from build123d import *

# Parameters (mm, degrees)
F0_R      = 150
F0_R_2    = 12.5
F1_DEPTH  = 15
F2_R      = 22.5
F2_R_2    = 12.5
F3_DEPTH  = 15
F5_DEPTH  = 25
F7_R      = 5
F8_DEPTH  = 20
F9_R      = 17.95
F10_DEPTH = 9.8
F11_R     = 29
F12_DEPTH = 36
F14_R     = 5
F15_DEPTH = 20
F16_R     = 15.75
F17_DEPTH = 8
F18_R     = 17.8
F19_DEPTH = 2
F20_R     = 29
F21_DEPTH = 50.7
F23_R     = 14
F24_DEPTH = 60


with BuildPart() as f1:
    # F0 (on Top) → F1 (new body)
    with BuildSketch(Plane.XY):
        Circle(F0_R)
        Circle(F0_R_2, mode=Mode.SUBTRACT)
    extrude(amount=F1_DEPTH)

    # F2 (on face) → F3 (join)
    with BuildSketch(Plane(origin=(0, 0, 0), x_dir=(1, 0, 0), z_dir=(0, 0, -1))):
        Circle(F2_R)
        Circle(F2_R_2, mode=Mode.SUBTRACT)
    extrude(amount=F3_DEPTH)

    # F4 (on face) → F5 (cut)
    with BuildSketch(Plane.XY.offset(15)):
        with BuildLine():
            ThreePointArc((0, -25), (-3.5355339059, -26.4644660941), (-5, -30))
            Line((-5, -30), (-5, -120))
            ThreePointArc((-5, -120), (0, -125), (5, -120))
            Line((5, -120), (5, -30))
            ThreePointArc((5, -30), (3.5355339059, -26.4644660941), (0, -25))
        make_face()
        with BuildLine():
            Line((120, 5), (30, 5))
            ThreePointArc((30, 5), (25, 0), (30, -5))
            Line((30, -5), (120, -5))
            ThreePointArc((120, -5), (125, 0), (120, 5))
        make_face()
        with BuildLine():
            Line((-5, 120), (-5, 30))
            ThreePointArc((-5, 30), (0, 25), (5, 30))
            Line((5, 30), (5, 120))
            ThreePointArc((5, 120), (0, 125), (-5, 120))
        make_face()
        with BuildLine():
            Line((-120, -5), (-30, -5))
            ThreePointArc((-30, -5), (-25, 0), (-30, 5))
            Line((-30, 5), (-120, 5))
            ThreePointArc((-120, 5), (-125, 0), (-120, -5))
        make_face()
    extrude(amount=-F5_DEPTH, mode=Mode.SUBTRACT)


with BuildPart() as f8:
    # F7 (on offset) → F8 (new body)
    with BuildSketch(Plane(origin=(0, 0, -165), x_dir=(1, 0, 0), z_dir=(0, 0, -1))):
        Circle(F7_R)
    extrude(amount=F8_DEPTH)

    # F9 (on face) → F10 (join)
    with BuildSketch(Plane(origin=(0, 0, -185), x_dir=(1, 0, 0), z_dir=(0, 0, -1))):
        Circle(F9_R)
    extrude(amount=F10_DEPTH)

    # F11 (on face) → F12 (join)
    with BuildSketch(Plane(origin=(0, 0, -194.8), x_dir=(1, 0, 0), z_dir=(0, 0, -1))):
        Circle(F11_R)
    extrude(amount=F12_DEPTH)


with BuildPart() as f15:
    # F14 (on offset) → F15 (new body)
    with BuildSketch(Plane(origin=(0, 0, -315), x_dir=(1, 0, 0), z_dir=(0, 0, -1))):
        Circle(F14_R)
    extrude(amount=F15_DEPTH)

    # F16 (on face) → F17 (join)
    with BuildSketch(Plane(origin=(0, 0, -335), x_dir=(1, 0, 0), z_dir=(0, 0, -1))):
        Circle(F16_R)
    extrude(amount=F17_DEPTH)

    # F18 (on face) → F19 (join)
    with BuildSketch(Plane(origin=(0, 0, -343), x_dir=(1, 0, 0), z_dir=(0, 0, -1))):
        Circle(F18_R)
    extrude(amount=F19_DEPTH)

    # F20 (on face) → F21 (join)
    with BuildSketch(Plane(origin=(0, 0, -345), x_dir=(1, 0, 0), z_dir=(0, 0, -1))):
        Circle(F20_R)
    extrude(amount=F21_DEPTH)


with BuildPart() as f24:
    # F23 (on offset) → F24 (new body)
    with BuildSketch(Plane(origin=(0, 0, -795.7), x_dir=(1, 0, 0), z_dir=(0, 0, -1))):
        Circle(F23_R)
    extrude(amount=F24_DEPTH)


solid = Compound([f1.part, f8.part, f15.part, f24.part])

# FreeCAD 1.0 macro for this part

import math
import FreeCAD as App
import Part
import Sketcher

doc = App.newDocument("Part")
body = doc.addObject("PartDesign::Body", "Body")

# Sketch on XY plane
sketch1 = body.newObject("Sketcher::SketchObject", "Sketch")
sketch1.AttachmentSupport = (doc.getObject("XY_Plane"), [""])
sketch1.MapMode = "FlatFace"
sketch1.addGeometry([
    Part.Circle(App.Vector(0, 0, 0), App.Vector(0, 0, 1), 150),
    Part.Circle(App.Vector(0, 0, 0), App.Vector(0, 0, 1), 12.5),
], False)
sketch1.addConstraint([
    Sketcher.Constraint("Coincident", 0, 3, -1, 1),
    Sketcher.Constraint("Coincident", 1, 3, -1, 1),
    Sketcher.Constraint("Diameter", 0, 300.0),
    Sketcher.Constraint("Diameter", 1, 25.0),
])
pad1 = body.newObject("PartDesign::Pad", "Pad")
pad1.Profile = sketch1
pad1.Length = 15

# Sketch on XY plane
sketch2 = body.newObject("Sketcher::SketchObject", "Sketch001")
sketch2.AttachmentSupport = (doc.getObject("XY_Plane"), [""])
sketch2.MapMode = "FlatFace"
sketch2.addGeometry([
    Part.Circle(App.Vector(0, 0, 0), App.Vector(0, 0, 1), 22.5),
    Part.Circle(App.Vector(0, 0, 0), App.Vector(0, 0, 1), 12.5),
], False)
sketch2.addConstraint([
    Sketcher.Constraint("Coincident", 0, 3, -1, 1),
    Sketcher.Constraint("Coincident", 1, 3, -1, 1),
    Sketcher.Constraint("Diameter", 0, 45.0),
    Sketcher.Constraint("Diameter", 1, 25.0),
])
pad2 = body.newObject("PartDesign::Pad", "Pad001")
pad2.Profile = sketch2
pad2.Length = 15
pad2.Reversed = True

# Sketch on XY plane
sketch3 = body.newObject("Sketcher::SketchObject", "Sketch002")
sketch3.AttachmentSupport = (doc.getObject("XY_Plane"), [""])
sketch3.MapMode = "FlatFace"
sketch3.AttachmentOffset = App.Placement(App.Vector(0, 0, 15), App.Rotation())
sketch3.addGeometry([
    Part.ArcOfCircle(Part.Circle(App.Vector(0, -30, 0), App.Vector(0, 0, 1), 5), math.radians(90), math.radians(180)),  # 0
    Part.LineSegment(App.Vector(-5, -30, 0), App.Vector(-5, -120, 0)),  # 1
    Part.ArcOfCircle(Part.Circle(App.Vector(0, -120, 0), App.Vector(0, 0, 1), 5), math.radians(180), math.radians(360)),  # 2
    Part.LineSegment(App.Vector(5, -120, 0), App.Vector(5, -30, 0)),  # 3
    Part.ArcOfCircle(Part.Circle(App.Vector(0, -30, 0), App.Vector(0, 0, 1), 5), math.radians(0), math.radians(90)),  # 4
    Part.LineSegment(App.Vector(120, 5, 0), App.Vector(30, 5, 0)),  # 5
    Part.ArcOfCircle(Part.Circle(App.Vector(30, 0, 0), App.Vector(0, 0, 1), 5), math.radians(90), math.radians(270)),  # 6
    Part.LineSegment(App.Vector(30, -5, 0), App.Vector(120, -5, 0)),  # 7
    Part.ArcOfCircle(Part.Circle(App.Vector(120, 0, 0), App.Vector(0, 0, 1), 5), math.radians(-90), math.radians(90)),  # 8
    Part.LineSegment(App.Vector(-5, 120, 0), App.Vector(-5, 30, 0)),  # 9
    Part.ArcOfCircle(Part.Circle(App.Vector(0, 30, 0), App.Vector(0, 0, 1), 5), math.radians(180), math.radians(360)),  # 10
    Part.LineSegment(App.Vector(5, 30, 0), App.Vector(5, 120, 0)),  # 11
    Part.ArcOfCircle(Part.Circle(App.Vector(0, 120, 0), App.Vector(0, 0, 1), 5), math.radians(0), math.radians(180)),  # 12
    Part.LineSegment(App.Vector(-120, -5, 0), App.Vector(-30, -5, 0)),  # 13
    Part.ArcOfCircle(Part.Circle(App.Vector(-30, 0, 0), App.Vector(0, 0, 1), 5), math.radians(-90), math.radians(90)),  # 14
    Part.LineSegment(App.Vector(-30, 5, 0), App.Vector(-120, 5, 0)),  # 15
    Part.ArcOfCircle(Part.Circle(App.Vector(-120, 0, 0), App.Vector(0, 0, 1), 5), math.radians(90), math.radians(270)),  # 16
], False)
sketch3.addConstraint([
    Sketcher.Constraint("Tangent", 0, 2, 1, 1),
    Sketcher.Constraint("Tangent", 1, 2, 2, 1),
    Sketcher.Constraint("Tangent", 2, 2, 3, 1),
    Sketcher.Constraint("Tangent", 3, 2, 4, 1),
    Sketcher.Constraint("Tangent", 4, 2, 0, 1),
    Sketcher.Constraint("Tangent", 5, 2, 6, 1),
    Sketcher.Constraint("Tangent", 6, 2, 7, 1),
    Sketcher.Constraint("Tangent", 7, 2, 8, 1),
    Sketcher.Constraint("Tangent", 8, 2, 5, 1),
    Sketcher.Constraint("Tangent", 9, 2, 10, 1),
    Sketcher.Constraint("Tangent", 10, 2, 11, 1),
    Sketcher.Constraint("Tangent", 11, 2, 12, 1),
    Sketcher.Constraint("Tangent", 12, 2, 9, 1),
    Sketcher.Constraint("Tangent", 13, 2, 14, 1),
    Sketcher.Constraint("Tangent", 14, 2, 15, 1),
    Sketcher.Constraint("Tangent", 15, 2, 16, 1),
    Sketcher.Constraint("Tangent", 16, 2, 13, 1),
    Sketcher.Constraint("Vertical", 1),
    Sketcher.Constraint("Vertical", 3),
    Sketcher.Constraint("Horizontal", 5),
    Sketcher.Constraint("Horizontal", 7),
    Sketcher.Constraint("Vertical", 9),
    Sketcher.Constraint("Vertical", 11),
    Sketcher.Constraint("Horizontal", 13),
    Sketcher.Constraint("Horizontal", 15),
    Sketcher.Constraint("Equal", 0, 2),
    Sketcher.Constraint("Equal", 4, 6),
    Sketcher.Constraint("Equal", 8, 10),
    Sketcher.Constraint("Equal", 12, 14),
    Sketcher.Constraint("Symmetric", 0, 3, 10, 3, -1, 1),
    Sketcher.Constraint("Symmetric", 6, 3, 14, 3, -1, 1),
    Sketcher.Constraint("Symmetric", 8, 3, 16, 3, -2),
    Sketcher.Constraint("Symmetric", 2, 3, 12, 3, -1),
    Sketcher.Constraint("PointOnObject", 4, 2, -2),
    Sketcher.Constraint("Equal", 15, 1),
    Sketcher.Constraint("Radius", 0, 5.0),
    Sketcher.Constraint("DistanceX", 5, 2, 5, 1, 90.0),
    Sketcher.Constraint("DistanceY", 0, 3, -1, 1, 30.0),
    Sketcher.Constraint("DistanceX", -1, 1, 6, 3, 30.0),
])
pocket1 = body.newObject("PartDesign::Pocket", "Pocket")
pocket1.Profile = sketch3
pocket1.Length = 25
body2 = doc.addObject("PartDesign::Body", "Body001")

# Sketch on XY plane
sketch4 = body2.newObject("Sketcher::SketchObject", "Sketch003")
sketch4.AttachmentSupport = (doc.getObject("XY_Plane001"), [""])
sketch4.MapMode = "FlatFace"
sketch4.AttachmentOffset = App.Placement(App.Vector(0, 0, -165), App.Rotation())
sketch4.addGeometry(Part.Circle(App.Vector(0, 0, 0), App.Vector(0, 0, 1), 5), False)
sketch4.addConstraint([
    Sketcher.Constraint("Coincident", 0, 3, -1, 1),
    Sketcher.Constraint("Diameter", 0, 10.0),
])
pad3 = body2.newObject("PartDesign::Pad", "Pad002")
pad3.Profile = sketch4
pad3.Length = 20
pad3.Reversed = True

# Sketch on XY plane
sketch5 = body2.newObject("Sketcher::SketchObject", "Sketch004")
sketch5.AttachmentSupport = (doc.getObject("XY_Plane001"), [""])
sketch5.MapMode = "FlatFace"
sketch5.AttachmentOffset = App.Placement(App.Vector(0, 0, -185), App.Rotation())
sketch5.addGeometry(Part.Circle(App.Vector(0, 0, 0), App.Vector(0, 0, 1), 17.95), False)
sketch5.addConstraint([
    Sketcher.Constraint("Coincident", 0, 3, -1, 1),
    Sketcher.Constraint("Diameter", 0, 35.9),
])
pad4 = body2.newObject("PartDesign::Pad", "Pad003")
pad4.Profile = sketch5
pad4.Length = 9.8
pad4.Reversed = True

# Sketch on XY plane
sketch6 = body2.newObject("Sketcher::SketchObject", "Sketch005")
sketch6.AttachmentSupport = (doc.getObject("XY_Plane001"), [""])
sketch6.MapMode = "FlatFace"
sketch6.AttachmentOffset = App.Placement(App.Vector(0, 0, -194.8), App.Rotation())
sketch6.addGeometry(Part.Circle(App.Vector(0, 0, 0), App.Vector(0, 0, 1), 29), False)
sketch6.addConstraint([
    Sketcher.Constraint("Coincident", 0, 3, -1, 1),
    Sketcher.Constraint("Diameter", 0, 58.0),
])
pad5 = body2.newObject("PartDesign::Pad", "Pad004")
pad5.Profile = sketch6
pad5.Length = 36
pad5.Reversed = True
body3 = doc.addObject("PartDesign::Body", "Body002")

# Sketch on XY plane
sketch7 = body3.newObject("Sketcher::SketchObject", "Sketch006")
sketch7.AttachmentSupport = (doc.getObject("XY_Plane002"), [""])
sketch7.MapMode = "FlatFace"
sketch7.AttachmentOffset = App.Placement(App.Vector(0, 0, -315), App.Rotation())
sketch7.addGeometry(Part.Circle(App.Vector(0, 0, 0), App.Vector(0, 0, 1), 5), False)
sketch7.addConstraint([
    Sketcher.Constraint("Coincident", 0, 3, -1, 1),
    Sketcher.Constraint("Diameter", 0, 10.0),
])
pad6 = body3.newObject("PartDesign::Pad", "Pad005")
pad6.Profile = sketch7
pad6.Length = 20
pad6.Reversed = True

# Sketch on XY plane
sketch8 = body3.newObject("Sketcher::SketchObject", "Sketch007")
sketch8.AttachmentSupport = (doc.getObject("XY_Plane002"), [""])
sketch8.MapMode = "FlatFace"
sketch8.AttachmentOffset = App.Placement(App.Vector(0, 0, -335), App.Rotation())
sketch8.addGeometry(Part.Circle(App.Vector(0, 0, 0), App.Vector(0, 0, 1), 15.75), False)
sketch8.addConstraint([
    Sketcher.Constraint("Coincident", 0, 3, -1, 1),
    Sketcher.Constraint("Diameter", 0, 31.5),
])
pad7 = body3.newObject("PartDesign::Pad", "Pad006")
pad7.Profile = sketch8
pad7.Length = 8
pad7.Reversed = True

# Sketch on XY plane
sketch9 = body3.newObject("Sketcher::SketchObject", "Sketch008")
sketch9.AttachmentSupport = (doc.getObject("XY_Plane002"), [""])
sketch9.MapMode = "FlatFace"
sketch9.AttachmentOffset = App.Placement(App.Vector(0, 0, -343), App.Rotation())
sketch9.addGeometry(Part.Circle(App.Vector(0, 0, 0), App.Vector(0, 0, 1), 17.8), False)
sketch9.addConstraint([
    Sketcher.Constraint("Coincident", 0, 3, -1, 1),
    Sketcher.Constraint("Diameter", 0, 35.6),
])
pad8 = body3.newObject("PartDesign::Pad", "Pad007")
pad8.Profile = sketch9
pad8.Length = 2
pad8.Reversed = True

# Sketch on XY plane
sketch10 = body3.newObject("Sketcher::SketchObject", "Sketch009")
sketch10.AttachmentSupport = (doc.getObject("XY_Plane002"), [""])
sketch10.MapMode = "FlatFace"
sketch10.AttachmentOffset = App.Placement(App.Vector(0, 0, -345), App.Rotation())
sketch10.addGeometry(Part.Circle(App.Vector(0, 0, 0), App.Vector(0, 0, 1), 29), False)
sketch10.addConstraint([
    Sketcher.Constraint("Coincident", 0, 3, -1, 1),
    Sketcher.Constraint("Diameter", 0, 58.0),
])
pad9 = body3.newObject("PartDesign::Pad", "Pad008")
pad9.Profile = sketch10
pad9.Length = 50.7
pad9.Reversed = True
body4 = doc.addObject("PartDesign::Body", "Body003")

# Sketch on XY plane
sketch11 = body4.newObject("Sketcher::SketchObject", "Sketch010")
sketch11.AttachmentSupport = (doc.getObject("XY_Plane003"), [""])
sketch11.MapMode = "FlatFace"
sketch11.AttachmentOffset = App.Placement(App.Vector(0, 0, -795.7), App.Rotation())
sketch11.addGeometry(Part.Circle(App.Vector(0, 0, 0), App.Vector(0, 0, 1), 14), False)
sketch11.addConstraint([
    Sketcher.Constraint("Coincident", 0, 3, -1, 1),
    Sketcher.Constraint("Diameter", 0, 28.0),
])
pad10 = body4.newObject("PartDesign::Pad", "Pad009")
pad10.Profile = sketch11
pad10.Length = 60
pad10.Reversed = True

doc.recompute()
